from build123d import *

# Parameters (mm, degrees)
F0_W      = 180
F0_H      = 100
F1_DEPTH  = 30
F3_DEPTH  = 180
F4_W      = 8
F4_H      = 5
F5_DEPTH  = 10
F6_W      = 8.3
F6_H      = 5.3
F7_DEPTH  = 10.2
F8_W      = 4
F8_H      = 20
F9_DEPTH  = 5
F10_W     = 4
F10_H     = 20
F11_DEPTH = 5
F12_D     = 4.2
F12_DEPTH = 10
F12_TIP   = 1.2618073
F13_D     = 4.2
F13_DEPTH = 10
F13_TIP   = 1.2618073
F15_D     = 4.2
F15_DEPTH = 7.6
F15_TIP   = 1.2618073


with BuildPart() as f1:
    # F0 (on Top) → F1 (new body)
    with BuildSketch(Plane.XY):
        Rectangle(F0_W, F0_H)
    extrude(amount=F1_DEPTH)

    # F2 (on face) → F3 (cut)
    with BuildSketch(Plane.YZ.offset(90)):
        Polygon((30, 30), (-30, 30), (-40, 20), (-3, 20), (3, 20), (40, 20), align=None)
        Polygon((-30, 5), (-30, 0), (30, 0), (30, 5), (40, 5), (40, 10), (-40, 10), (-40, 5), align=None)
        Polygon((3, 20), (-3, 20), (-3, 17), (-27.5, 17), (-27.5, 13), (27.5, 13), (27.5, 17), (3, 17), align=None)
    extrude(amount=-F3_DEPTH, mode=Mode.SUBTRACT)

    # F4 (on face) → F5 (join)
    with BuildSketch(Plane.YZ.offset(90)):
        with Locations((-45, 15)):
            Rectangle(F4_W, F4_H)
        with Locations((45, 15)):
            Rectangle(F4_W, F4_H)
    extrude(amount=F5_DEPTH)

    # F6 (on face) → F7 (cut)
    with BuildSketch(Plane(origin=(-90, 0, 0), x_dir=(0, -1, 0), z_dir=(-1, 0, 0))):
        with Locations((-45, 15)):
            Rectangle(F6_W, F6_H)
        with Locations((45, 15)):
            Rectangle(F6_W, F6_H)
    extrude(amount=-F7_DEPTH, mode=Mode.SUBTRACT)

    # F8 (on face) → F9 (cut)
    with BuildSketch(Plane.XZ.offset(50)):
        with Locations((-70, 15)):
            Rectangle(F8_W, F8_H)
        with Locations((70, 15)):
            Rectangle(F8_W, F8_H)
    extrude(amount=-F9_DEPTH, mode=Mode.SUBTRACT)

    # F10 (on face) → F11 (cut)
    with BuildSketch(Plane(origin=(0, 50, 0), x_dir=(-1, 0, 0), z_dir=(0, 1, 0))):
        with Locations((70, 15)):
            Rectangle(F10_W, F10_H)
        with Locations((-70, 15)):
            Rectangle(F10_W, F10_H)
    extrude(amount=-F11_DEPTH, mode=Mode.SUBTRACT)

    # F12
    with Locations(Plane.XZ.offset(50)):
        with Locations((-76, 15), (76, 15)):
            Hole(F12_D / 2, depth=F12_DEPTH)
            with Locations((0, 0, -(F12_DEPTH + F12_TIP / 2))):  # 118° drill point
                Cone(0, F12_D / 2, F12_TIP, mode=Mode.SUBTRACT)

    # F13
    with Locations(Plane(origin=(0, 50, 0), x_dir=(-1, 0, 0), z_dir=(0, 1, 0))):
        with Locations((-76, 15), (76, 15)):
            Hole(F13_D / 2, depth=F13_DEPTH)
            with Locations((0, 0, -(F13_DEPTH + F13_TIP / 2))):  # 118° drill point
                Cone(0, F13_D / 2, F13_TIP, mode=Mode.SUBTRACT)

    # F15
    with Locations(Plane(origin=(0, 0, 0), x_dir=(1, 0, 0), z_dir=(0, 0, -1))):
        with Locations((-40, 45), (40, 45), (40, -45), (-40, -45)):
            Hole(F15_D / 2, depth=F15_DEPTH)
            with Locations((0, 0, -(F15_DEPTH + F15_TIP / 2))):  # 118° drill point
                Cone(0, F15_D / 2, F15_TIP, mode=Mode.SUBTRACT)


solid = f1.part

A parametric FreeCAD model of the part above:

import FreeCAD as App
import Part
import Sketcher


def add_polygon(sketch, points):
    """Adds a closed chain of lines whose ends are joined by coincident constraints."""
    first, n = sketch.GeometryCount, len(points)
    for a, b in zip(points, points[1:] + points[:1]):
        sketch.addGeometry(Part.LineSegment(App.Vector(*a, 0), App.Vector(*b, 0)), False)
    for i in range(n):
        sketch.addConstraint(Sketcher.Constraint("Coincident", first + i, 2, first + (i + 1) % n, 1))

doc = App.newDocument("Part")
body = doc.addObject("PartDesign::Body", "Body")

# Sketch on XY plane
sketch1 = body.newObject("Sketcher::SketchObject", "Sketch")
sketch1.AttachmentSupport = (doc.getObject("XY_Plane"), [""])
sketch1.MapMode = "FlatFace"
add_polygon(sketch1, [(-90, 50), (-90, -50), (90, -50), (90, 50)])  # lines 0-3
sketch1.addConstraint([
    Sketcher.Constraint("Vertical", 0),
    Sketcher.Constraint("Horizontal", 1),
    Sketcher.Constraint("Vertical", 2),
    Sketcher.Constraint("Horizontal", 3),
    Sketcher.Constraint("Symmetric", 0, 2, 2, 2, -1, 1),
    Sketcher.Constraint("DistanceX", 1, 1, 1, 2, 180.0),
    Sketcher.Constraint("DistanceY", 0, 2, 0, 1, 100.0),
])
pad1 = body.newObject("PartDesign::Pad", "Pad")
pad1.Profile = sketch1
pad1.Length = 30

# Sketch on YZ plane
sketch2 = body.newObject("Sketcher::SketchObject", "Sketch001")
sketch2.AttachmentSupport = (doc.getObject("YZ_Plane"), [""])
sketch2.MapMode = "FlatFace"
sketch2.AttachmentOffset = App.Placement(App.Vector(0, 0, 90), App.Rotation())
add_polygon(sketch2, [(30, 30), (-30, 30), (-40, 20), (-3, 20), (-3, 17), (-27.5, 17), (-27.5, 13), (27.5, 13), (27.5, 17), (3, 17), (3, 20), (40, 20)])  # lines 0-11
add_polygon(sketch2, [(-30, 5), (-30, 0), (30, 0), (30, 5), (40, 5), (40, 10), (-40, 10), (-40, 5)])  # lines 12-19
sketch2.addConstraint([
    Sketcher.Constraint("Horizontal", 0),
    Sketcher.Constraint("Horizontal", 2),
    Sketcher.Constraint("Vertical", 3),
    Sketcher.Constraint("Horizontal", 4),
    Sketcher.Constraint("Vertical", 5),
    Sketcher.Constraint("Horizontal", 6),
    Sketcher.Constraint("Vertical", 7),
    Sketcher.Constraint("Horizontal", 8),
    Sketcher.Constraint("Vertical", 9),
    Sketcher.Constraint("Horizontal", 10),
    Sketcher.Constraint("Vertical", 12),
    Sketcher.Constraint("Horizontal", 13),
    Sketcher.Constraint("Vertical", 14),
    Sketcher.Constraint("Horizontal", 15),
    Sketcher.Constraint("Vertical", 16),
    Sketcher.Constraint("Horizontal", 17),
    Sketcher.Constraint("Vertical", 18),
    Sketcher.Constraint("Horizontal", 19),
    Sketcher.Constraint("Symmetric", 12, 2, 13, 2, -1, 1),
    Sketcher.Constraint("Symmetric", 4, 2, 7, 2, -2),
    Sketcher.Constraint("Symmetric", 2, 2, 9, 2, -2),
    Sketcher.Constraint("Symmetric", 15, 2, 18, 2, -2),
    Sketcher.Constraint("Perpendicular", 1, 11),
    Sketcher.Constraint("Vertical", 0, 2, 12, 2),
    Sketcher.Constraint("Vertical", 11, 2, 13, 2),
    Sketcher.Constraint("Vertical", 10, 2, 15, 2),
    Sketcher.Constraint("Vertical", 1, 2, 17, 2),
    Sketcher.Constraint("Equal", 14, 16),
    Sketcher.Constraint("DistanceX", 0, 2, 0, 1, 60.0),
    Sketcher.Constraint("DistanceX", 2, 1, 2, 2, 37.0),
    Sketcher.Constraint("DistanceX", 6, 1, 6, 2, 55.0),
    Sketcher.Constraint("DistanceX", 15, 1, 15, 2, 10.0),
    Sketcher.Constraint("DistanceY", 3, 2, 3, 1, 3.0),
    Sketcher.Constraint("DistanceY", 5, 2, 5, 1, 4.0),
    Sketcher.Constraint("DistanceY", 12, 2, 12, 1, 5.0),
    Sketcher.Constraint("DistanceY", -1, 1, 0, 2, 30.0),
])
pocket1 = body.newObject("PartDesign::Pocket", "Pocket")
pocket1.Profile = sketch2
pocket1.Length = 180

# Sketch on YZ plane
sketch3 = body.newObject("Sketcher::SketchObject", "Sketch002")
sketch3.AttachmentSupport = (doc.getObject("YZ_Plane"), [""])
sketch3.MapMode = "FlatFace"
sketch3.AttachmentOffset = App.Placement(App.Vector(0, 0, 90), App.Rotation())
add_polygon(sketch3, [(-49, 18), (-49, 12), (-41, 12), (-41, 18)])  # lines 0-3
add_polygon(sketch3, [(41, 18), (41, 12), (49, 12), (49, 18)])  # lines 4-7
sketch3.addConstraint([
    Sketcher.Constraint("Vertical", 0),
    Sketcher.Constraint("Horizontal", 1),
    Sketcher.Constraint("Vertical", 2),
    Sketcher.Constraint("Horizontal", 3),
    Sketcher.Constraint("Vertical", 4),
    Sketcher.Constraint("Horizontal", 5),
    Sketcher.Constraint("Vertical", 6),
    Sketcher.Constraint("Horizontal", 7),
    Sketcher.Constraint("Symmetric", 1, 2, 4, 2, -2),
    Sketcher.Constraint("Symmetric", 3, 2, 6, 2, -2),
    Sketcher.Constraint("DistanceX", 1, 1, 1, 2, 8.0),
    Sketcher.Constraint("DistanceY", 0, 2, 0, 1, 5.0),
    Sketcher.Constraint("DistanceX", 0, 2, -1, 1, 49.0),
    Sketcher.Constraint("DistanceY", -1, 1, 0, 2, 12.5),
])
pad2 = body.newObject("PartDesign::Pad", "Pad001")
pad2.Profile = sketch3
pad2.Length = 10

# Sketch on YZ plane
sketch4 = body.newObject("Sketcher::SketchObject", "Sketch003")
sketch4.AttachmentSupport = (doc.getObject("YZ_Plane"), [""])
sketch4.MapMode = "FlatFace"
sketch4.AttachmentOffset = App.Placement(App.Vector(0, 0, -90), App.Rotation())
add_polygon(sketch4, [(49, 18), (49, 12), (41, 12), (41, 18)])  # lines 0-3
add_polygon(sketch4, [(-41, 18), (-41, 12), (-49, 12), (-49, 18)])  # lines 4-7
sketch4.addConstraint([
    Sketcher.Constraint("Vertical", 0),
    Sketcher.Constraint("Horizontal", 1),
    Sketcher.Constraint("Vertical", 2),
    Sketcher.Constraint("Horizontal", 3),
    Sketcher.Constraint("Vertical", 4),
    Sketcher.Constraint("Horizontal", 5),
    Sketcher.Constraint("Vertical", 6),
    Sketcher.Constraint("Horizontal", 7),
    Sketcher.Constraint("Symmetric", 1, 2, 4, 2, -2),
    Sketcher.Constraint("Symmetric", 3, 2, 6, 2, -2),
    Sketcher.Constraint("DistanceX", 1, 2, 1, 1, 8.3),
    Sketcher.Constraint("DistanceY", 0, 2, 0, 1, 5.3),
    Sketcher.Constraint("DistanceX", 4, 2, 0, 2, 90.0),
    Sketcher.Constraint("DistanceY", -1, 1, 0, 2, 12.35),
])
pocket2 = body.newObject("PartDesign::Pocket", "Pocket001")
pocket2.Profile = sketch4
pocket2.Length = 10.2
pocket2.Reversed = True

# Sketch on XZ plane
sketch5 = body.newObject("Sketcher::SketchObject", "Sketch004")
sketch5.AttachmentSupport = (doc.getObject("XZ_Plane"), [""])
sketch5.MapMode = "FlatFace"
sketch5.AttachmentOffset = App.Placement(App.Vector(0, 0, 50), App.Rotation())
add_polygon(sketch5, [(-72, 25), (-72, 5), (-68, 5), (-68, 25)])  # lines 0-3
add_polygon(sketch5, [(68, 25), (68, 5), (72, 5), (72, 25)])  # lines 4-7
sketch5.addConstraint([
    Sketcher.Constraint("Vertical", 0),
    Sketcher.Constraint("Horizontal", 1),
    Sketcher.Constraint("Vertical", 2),
    Sketcher.Constraint("Horizontal", 3),
    Sketcher.Constraint("Vertical", 4),
    Sketcher.Constraint("Horizontal", 5),
    Sketcher.Constraint("Vertical", 6),
    Sketcher.Constraint("Horizontal", 7),
    Sketcher.Constraint("Symmetric", 1, 2, 4, 2, -2),
    Sketcher.Constraint("Symmetric", 3, 2, 6, 2, -2),
    Sketcher.Constraint("DistanceX", 1, 1, 1, 2, 4.0),
    Sketcher.Constraint("DistanceY", 0, 2, 0, 1, 20.0),
    Sketcher.Constraint("DistanceX", 0, 2, -1, 1, 72.0),
    Sketcher.Constraint("DistanceY", -1, 1, 0, 2, 5.0),
])
pocket3 = body.newObject("PartDesign::Pocket", "Pocket002")
pocket3.Profile = sketch5
pocket3.Length = 5

# Sketch on XZ plane
sketch6 = body.newObject("Sketcher::SketchObject", "Sketch005")
sketch6.AttachmentSupport = (doc.getObject("XZ_Plane"), [""])
sketch6.MapMode = "FlatFace"
sketch6.AttachmentOffset = App.Placement(App.Vector(0, 0, -50), App.Rotation())
add_polygon(sketch6, [(-68, 25), (-68, 5), (-72, 5), (-72, 25)])  # lines 0-3
add_polygon(sketch6, [(72, 25), (72, 5), (68, 5), (68, 25)])  # lines 4-7
sketch6.addConstraint([
    Sketcher.Constraint("Vertical", 0),
    Sketcher.Constraint("Horizontal", 1),
    Sketcher.Constraint("Vertical", 2),
    Sketcher.Constraint("Horizontal", 3),
    Sketcher.Constraint("Vertical", 4),
    Sketcher.Constraint("Horizontal", 5),
    Sketcher.Constraint("Vertical", 6),
    Sketcher.Constraint("Horizontal", 7),
    Sketcher.Constraint("Symmetric", 1, 2, 4, 2, -2),
    Sketcher.Constraint("Symmetric", 3, 2, 6, 2, -2),
    Sketcher.Constraint("DistanceX", 1, 2, 1, 1, 4.0),
    Sketcher.Constraint("DistanceY", 0, 2, 0, 1, 20.0),
    Sketcher.Constraint("DistanceX", 0, 2, -1, 1, 68.0),
    Sketcher.Constraint("DistanceY", -1, 1, 0, 2, 5.0),
])
pocket4 = body.newObject("PartDesign::Pocket", "Pocket003")
pocket4.Profile = sketch6
pocket4.Length = 5
pocket4.Reversed = True

# Sketch on XZ plane
sketch7 = body.newObject("Sketcher::SketchObject", "Sketch006")
sketch7.AttachmentSupport = (doc.getObject("XZ_Plane"), [""])
sketch7.MapMode = "FlatFace"
sketch7.AttachmentOffset = App.Placement(App.Vector(0, 0, 50), App.Rotation())
sketch7.addGeometry([
    Part.Circle(App.Vector(-76, 15, 0), App.Vector(0, 0, 1), 2.1),
    Part.Circle(App.Vector(76, 15, 0), App.Vector(0, 0, 1), 2.1),
], False)
sketch7.addConstraint([
    Sketcher.Constraint("Equal", 0, 1),
    Sketcher.Constraint("Symmetric", 0, 3, 1, 3, -2),
    Sketcher.Constraint("Diameter", 0, 4.2),
    Sketcher.Constraint("DistanceX", 0, 3, -1, 1, 76.0),
    Sketcher.Constraint("DistanceY", -1, 1, 0, 3, 15.0),
])
doc.recompute()
hole = body.newObject("PartDesign::Hole", "Hole")
hole.Profile = sketch7
hole.ThreadType = "None"
hole.Diameter = 4.2
hole.DepthType = "Dimension"
hole.Depth = 10
hole.DrillPoint = "Angled"
hole.DrillPointAngle = 118

# Sketch on XZ plane
sketch8 = body.newObject("Sketcher::SketchObject", "Sketch007")
sketch8.AttachmentSupport = (doc.getObject("XZ_Plane"), [""])
sketch8.MapMode = "FlatFace"
sketch8.AttachmentOffset = App.Placement(App.Vector(0, 0, -50), App.Rotation())
sketch8.addGeometry([
    Part.Circle(App.Vector(76, 15, 0), App.Vector(0, 0, 1), 2.1),
    Part.Circle(App.Vector(-76, 15, 0), App.Vector(0, 0, 1), 2.1),
], False)
sketch8.addConstraint([
    Sketcher.Constraint("Equal", 0, 1),
    Sketcher.Constraint("Symmetric", 0, 3, 1, 3, -2),
    Sketcher.Constraint("Diameter", 0, 4.2),
    Sketcher.Constraint("DistanceX", -1, 1, 0, 3, 76.0),
    Sketcher.Constraint("DistanceY", -1, 1, 0, 3, 15.0),
])
doc.recompute()
hole2 = body.newObject("PartDesign::Hole", "Hole001")
hole2.Profile = sketch8
hole2.ThreadType = "None"
hole2.Diameter = 4.2
hole2.DepthType = "Dimension"
hole2.Depth = 10
hole2.DrillPoint = "Angled"
hole2.DrillPointAngle = 118
hole2.Reversed = True

# Sketch on XY plane
sketch9 = body.newObject("Sketcher::SketchObject", "Sketch008")
sketch9.AttachmentSupport = (doc.getObject("XY_Plane"), [""])
sketch9.MapMode = "FlatFace"
sketch9.addGeometry([
    Part.Circle(App.Vector(-40, -45, 0), App.Vector(0, 0, 1), 2.1),
    Part.Circle(App.Vector(40, -45, 0), App.Vector(0, 0, 1), 2.1),
    Part.Circle(App.Vector(40, 45, 0), App.Vector(0, 0, 1), 2.1),
    Part.Circle(App.Vector(-40, 45, 0), App.Vector(0, 0, 1), 2.1),
], False)
sketch9.addConstraint([
    Sketcher.Constraint("Equal", 0, 1),
    Sketcher.Constraint("Equal", 1, 2),
    Sketcher.Constraint("Equal", 2, 3),
    Sketcher.Constraint("Symmetric", 0, 3, 2, 3, -1, 1),
    Sketcher.Constraint("Symmetric", 1, 3, 3, 3, -1, 1),
    Sketcher.Constraint("Symmetric", 0, 3, 1, 3, -2),
    Sketcher.Constraint("Diameter", 0, 4.2),
    Sketcher.Constraint("DistanceX", 0, 3, -1, 1, 40.0),
    Sketcher.Constraint("DistanceY", 0, 3, -1, 1, 45.0),
])
doc.recompute()
hole3 = body.newObject("PartDesign::Hole", "Hole002")
hole3.Profile = sketch9
hole3.ThreadType = "None"
hole3.Diameter = 4.2
hole3.DepthType = "Dimension"
hole3.Depth = 7.6
hole3.DrillPoint = "Angled"
hole3.DrillPointAngle = 118
hole3.Reversed = True

doc.recompute()
